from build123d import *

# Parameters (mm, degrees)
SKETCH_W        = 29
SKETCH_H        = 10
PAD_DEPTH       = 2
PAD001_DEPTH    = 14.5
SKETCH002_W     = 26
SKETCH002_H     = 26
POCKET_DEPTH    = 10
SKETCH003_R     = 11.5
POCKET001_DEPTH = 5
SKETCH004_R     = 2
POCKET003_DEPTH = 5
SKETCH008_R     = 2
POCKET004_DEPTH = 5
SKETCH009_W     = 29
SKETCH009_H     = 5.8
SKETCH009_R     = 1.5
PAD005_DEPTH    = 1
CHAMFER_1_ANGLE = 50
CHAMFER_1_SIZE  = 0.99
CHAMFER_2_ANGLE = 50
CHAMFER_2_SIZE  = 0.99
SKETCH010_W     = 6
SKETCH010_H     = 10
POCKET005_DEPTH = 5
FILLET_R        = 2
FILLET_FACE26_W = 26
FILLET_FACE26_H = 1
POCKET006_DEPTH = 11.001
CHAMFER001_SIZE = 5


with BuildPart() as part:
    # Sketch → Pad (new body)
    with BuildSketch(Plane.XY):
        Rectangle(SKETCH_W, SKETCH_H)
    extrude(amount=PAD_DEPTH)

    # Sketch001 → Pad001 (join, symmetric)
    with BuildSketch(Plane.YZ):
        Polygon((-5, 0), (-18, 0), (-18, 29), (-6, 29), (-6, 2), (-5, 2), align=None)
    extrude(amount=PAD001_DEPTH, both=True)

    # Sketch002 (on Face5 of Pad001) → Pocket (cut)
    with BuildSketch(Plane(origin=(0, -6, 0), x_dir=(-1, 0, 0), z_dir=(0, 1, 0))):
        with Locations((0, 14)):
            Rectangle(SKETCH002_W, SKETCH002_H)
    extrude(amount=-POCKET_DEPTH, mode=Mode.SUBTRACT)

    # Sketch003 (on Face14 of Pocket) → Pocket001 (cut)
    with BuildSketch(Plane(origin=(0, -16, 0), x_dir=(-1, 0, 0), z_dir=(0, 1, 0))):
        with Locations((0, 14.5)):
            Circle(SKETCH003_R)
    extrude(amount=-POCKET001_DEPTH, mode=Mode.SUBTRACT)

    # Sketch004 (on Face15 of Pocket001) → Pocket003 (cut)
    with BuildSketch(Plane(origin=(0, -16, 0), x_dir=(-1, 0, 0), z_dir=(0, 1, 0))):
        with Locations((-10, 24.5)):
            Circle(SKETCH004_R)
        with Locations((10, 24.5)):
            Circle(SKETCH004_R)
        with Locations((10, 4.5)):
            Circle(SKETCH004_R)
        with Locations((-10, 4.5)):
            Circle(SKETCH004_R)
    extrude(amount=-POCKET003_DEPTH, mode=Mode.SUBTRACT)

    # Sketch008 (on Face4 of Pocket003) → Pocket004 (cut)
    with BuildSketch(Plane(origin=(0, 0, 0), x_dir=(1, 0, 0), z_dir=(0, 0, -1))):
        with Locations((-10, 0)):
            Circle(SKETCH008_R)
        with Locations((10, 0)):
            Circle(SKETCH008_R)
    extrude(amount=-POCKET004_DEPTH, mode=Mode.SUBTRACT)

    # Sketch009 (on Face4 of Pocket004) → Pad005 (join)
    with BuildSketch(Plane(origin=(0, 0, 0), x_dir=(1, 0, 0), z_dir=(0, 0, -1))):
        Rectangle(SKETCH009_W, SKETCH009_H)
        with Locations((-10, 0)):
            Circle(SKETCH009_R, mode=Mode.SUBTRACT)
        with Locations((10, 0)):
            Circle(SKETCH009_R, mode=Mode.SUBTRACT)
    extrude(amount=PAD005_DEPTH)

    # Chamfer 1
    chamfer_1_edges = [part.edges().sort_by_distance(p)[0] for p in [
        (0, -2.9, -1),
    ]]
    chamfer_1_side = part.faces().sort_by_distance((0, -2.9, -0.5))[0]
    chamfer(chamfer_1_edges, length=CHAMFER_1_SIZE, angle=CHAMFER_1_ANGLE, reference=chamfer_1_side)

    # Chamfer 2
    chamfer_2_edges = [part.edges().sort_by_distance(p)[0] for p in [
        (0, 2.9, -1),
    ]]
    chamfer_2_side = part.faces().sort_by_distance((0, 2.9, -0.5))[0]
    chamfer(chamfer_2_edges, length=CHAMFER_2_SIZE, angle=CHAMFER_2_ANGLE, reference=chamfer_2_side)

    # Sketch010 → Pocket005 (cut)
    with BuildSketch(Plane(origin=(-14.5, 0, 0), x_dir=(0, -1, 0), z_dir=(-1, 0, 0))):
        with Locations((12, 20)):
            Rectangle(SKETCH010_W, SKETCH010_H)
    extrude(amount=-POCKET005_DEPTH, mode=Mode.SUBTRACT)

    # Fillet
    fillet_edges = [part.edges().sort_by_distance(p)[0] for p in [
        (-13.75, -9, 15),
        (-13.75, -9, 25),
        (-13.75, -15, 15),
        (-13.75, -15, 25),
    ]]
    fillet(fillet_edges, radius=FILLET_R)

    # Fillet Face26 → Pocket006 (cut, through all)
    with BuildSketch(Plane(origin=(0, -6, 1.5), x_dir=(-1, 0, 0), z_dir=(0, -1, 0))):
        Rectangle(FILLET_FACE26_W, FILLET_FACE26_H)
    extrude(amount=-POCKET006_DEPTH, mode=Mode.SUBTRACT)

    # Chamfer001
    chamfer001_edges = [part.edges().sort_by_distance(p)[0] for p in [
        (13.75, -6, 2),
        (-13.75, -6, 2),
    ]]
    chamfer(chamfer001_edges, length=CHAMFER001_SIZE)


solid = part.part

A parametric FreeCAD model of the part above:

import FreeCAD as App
import Part
import Sketcher


def edges_at(feature, points):
    """Names of the edges that pass closest to the given points."""
    edges = feature.Shape.Edges
    near = lambda p: min(range(len(edges)), key=lambda i: edges[i].distToShape(Part.Vertex(*p))[0])
    return sorted({f"Edge{near(p) + 1}" for p in points})


def add_polygon(sketch, points):
    """Adds a closed chain of lines whose ends are joined by coincident constraints."""
    first, n = sketch.GeometryCount, len(points)
    for a, b in zip(points, points[1:] + points[:1]):
        sketch.addGeometry(Part.LineSegment(App.Vector(*a, 0), App.Vector(*b, 0)), False)
    for i in range(n):
        sketch.addConstraint(Sketcher.Constraint("Coincident", first + i, 2, first + (i + 1) % n, 1))

doc = App.newDocument("Part")
body = doc.addObject("PartDesign::Body", "Body")

# Sketch on XY plane
sketch1 = body.newObject("Sketcher::SketchObject", "Sketch")
sketch1.AttachmentSupport = (doc.getObject("XY_Plane"), [""])
sketch1.MapMode = "FlatFace"
add_polygon(sketch1, [(-14, 5), (-14, -5), (14, -5), (14, 5)])  # lines 0-3
sketch1.addConstraint(Sketcher.Constraint("Vertical", 0))
sketch1.addConstraint(Sketcher.Constraint("Horizontal", 1))
sketch1.addConstraint(Sketcher.Constraint("Vertical", 2))
sketch1.addConstraint(Sketcher.Constraint("Horizontal", 3))
sketch1.addConstraint(Sketcher.Constraint("Symmetric", 0, 2, 2, 2, -1, 1))
sketch1.addConstraint(Sketcher.Constraint("DistanceX", 1, 1, 1, 2, 29.0))
sketch1.addConstraint(Sketcher.Constraint("DistanceY", 0, 2, 0, 1, 10.0))
pad1 = body.newObject("PartDesign::Pad", "Pad")
pad1.Profile = sketch1
pad1.Length = 2

# Sketch on YZ plane
sketch2 = body.newObject("Sketcher::SketchObject", "Sketch001")
sketch2.AttachmentSupport = (doc.getObject("YZ_Plane"), [""])
sketch2.MapMode = "FlatFace"
add_polygon(sketch2, [(-18, 0), (-5, 0), (-5, 2), (-6, 2), (-6, 29), (-18, 29)])  # lines 0-5
sketch2.addConstraint(Sketcher.Constraint("Horizontal", 0))
sketch2.addConstraint(Sketcher.Constraint("Vertical", 1))
sketch2.addConstraint(Sketcher.Constraint("Horizontal", 2))
sketch2.addConstraint(Sketcher.Constraint("Vertical", 3))
sketch2.addConstraint(Sketcher.Constraint("Horizontal", 4))
sketch2.addConstraint(Sketcher.Constraint("Vertical", 5))
sketch2.addConstraint(Sketcher.Constraint("PointOnObject", 0, 2, -1))
sketch2.addConstraint(Sketcher.Constraint("DistanceX", 0, 1, 0, 2, 13.0))
sketch2.addConstraint(Sketcher.Constraint("DistanceX", 2, 2, 2, 1, 1.0))
sketch2.addConstraint(Sketcher.Constraint("DistanceY", 1, 1, 1, 2, 2.0))
sketch2.addConstraint(Sketcher.Constraint("DistanceY", 3, 1, 3, 2, 27.0))
sketch2.addConstraint(Sketcher.Constraint("DistanceX", 0, 2, -1, 1, 5.0))
pad2 = body.newObject("PartDesign::Pad", "Pad001")
pad2.Profile = sketch2
pad2.Length = 29
pad2.Midplane = True

# Sketch on XZ plane
sketch3 = body.newObject("Sketcher::SketchObject", "Sketch002")
sketch3.AttachmentSupport = (doc.getObject("XZ_Plane"), [""])
sketch3.MapMode = "FlatFace"
sketch3.AttachmentOffset = App.Placement(App.Vector(0, 0, 6), App.Rotation())
add_polygon(sketch3, [(13, 27), (13, 1), (-13, 1), (-13, 27)])  # lines 0-3
sketch3.addConstraint(Sketcher.Constraint("Vertical", 0))
sketch3.addConstraint(Sketcher.Constraint("Horizontal", 1))
sketch3.addConstraint(Sketcher.Constraint("Vertical", 2))
sketch3.addConstraint(Sketcher.Constraint("Horizontal", 3))
sketch3.addConstraint(Sketcher.Constraint("Equal", 3, 0))
sketch3.addConstraint(Sketcher.Constraint("DistanceX", 1, 2, 1, 1, 26.0))
sketch3.addConstraint(Sketcher.Constraint("DistanceX", -1, 1, 0, 2, 13.0))
sketch3.addConstraint(Sketcher.Constraint("DistanceY", -1, 1, 0, 2, 1.0))
pocket1 = body.newObject("PartDesign::Pocket", "Pocket")
pocket1.Profile = sketch3
pocket1.Length = 10
pocket1.Reversed = True

# Sketch on XZ plane
sketch4 = body.newObject("Sketcher::SketchObject", "Sketch003")
sketch4.AttachmentSupport = (doc.getObject("XZ_Plane"), [""])
sketch4.MapMode = "FlatFace"
sketch4.AttachmentOffset = App.Placement(App.Vector(0, 0, 16), App.Rotation())
sketch4.addGeometry(Part.Circle(App.Vector(0, 14, 0), App.Vector(0, 0, 1), 12), False)
sketch4.addConstraint(Sketcher.Constraint("PointOnObject", 0, 3, -2))
sketch4.addConstraint(Sketcher.Constraint("Diameter", 0, 23.0))
sketch4.addConstraint(Sketcher.Constraint("DistanceY", -1, 1, 0, 3, 14.5))
pocket2 = body.newObject("PartDesign::Pocket", "Pocket001")
pocket2.Profile = sketch4
pocket2.Length = 5
pocket2.Reversed = True

# Sketch on XZ plane
sketch5 = body.newObject("Sketcher::SketchObject", "Sketch004")
sketch5.AttachmentSupport = (doc.getObject("XZ_Plane"), [""])
sketch5.MapMode = "FlatFace"
sketch5.AttachmentOffset = App.Placement(App.Vector(0, 0, 16), App.Rotation())
sketch5.addGeometry(Part.Circle(App.Vector(10, 24.5, 0), App.Vector(0, 0, 1), 2), False)
sketch5.addGeometry(Part.Circle(App.Vector(-10, 24.5, 0), App.Vector(0, 0, 1), 2), False)
sketch5.addGeometry(Part.Circle(App.Vector(-10, 4.5, 0), App.Vector(0, 0, 1), 2), False)
sketch5.addGeometry(Part.Circle(App.Vector(10, 4.5, 0), App.Vector(0, 0, 1), 2), False)
sketch5.addConstraint(Sketcher.Constraint("Equal", 0, 1))
sketch5.addConstraint(Sketcher.Constraint("Equal", 1, 2))
sketch5.addConstraint(Sketcher.Constraint("Equal", 2, 3))
sketch5.addConstraint(Sketcher.Constraint("Symmetric", 0, 3, 1, 3, -2))
sketch5.addConstraint(Sketcher.Constraint("Symmetric", 2, 3, 3, 3, -2))
sketch5.addConstraint(Sketcher.Constraint("Vertical", 1, 3, 2, 3))
sketch5.addConstraint(Sketcher.Constraint("Diameter", 0, 4.0))
sketch5.addConstraint(Sketcher.Constraint("DistanceX", -1, 1, 0, 3, 10.0))
sketch5.addConstraint(Sketcher.Constraint("DistanceY", 2, 3, 1, 3, 20.0))
sketch5.addConstraint(Sketcher.Constraint("DistanceY", -1, 1, 0, 3, 24.5))
pocket3 = body.newObject("PartDesign::Pocket", "Pocket002")
pocket3.Profile = sketch5
pocket3.Length = 5
pocket3.Reversed = True

# Sketch on XY plane
sketch6 = body.newObject("Sketcher::SketchObject", "Sketch005")
sketch6.AttachmentSupport = (doc.getObject("XY_Plane"), [""])
sketch6.MapMode = "FlatFace"
sketch6.addGeometry(Part.Circle(App.Vector(-10, 0, 0), App.Vector(0, 0, 1), 2), False)
sketch6.addGeometry(Part.Circle(App.Vector(10, 0, 0), App.Vector(0, 0, 1), 2), False)
sketch6.addConstraint(Sketcher.Constraint("Equal", 0, 1))
sketch6.addConstraint(Sketcher.Constraint("Symmetric", 0, 3, 1, 3, -1, 1))
sketch6.addConstraint(Sketcher.Constraint("PointOnObject", 0, 3, -1))
sketch6.addConstraint(Sketcher.Constraint("Diameter", 0, 4.0))
sketch6.addConstraint(Sketcher.Constraint("DistanceX", 0, 3, -1, 1, 10.0))
pocket4 = body.newObject("PartDesign::Pocket", "Pocket003")
pocket4.Profile = sketch6
pocket4.Length = 5
pocket4.Reversed = True

# Sketch on XY plane
sketch7 = body.newObject("Sketcher::SketchObject", "Sketch006")
sketch7.AttachmentSupport = (doc.getObject("XY_Plane"), [""])
sketch7.MapMode = "FlatFace"
add_polygon(sketch7, [(-14.5, -2.9), (-14.5, 2.9), (14.5, 2.9), (14.5, -2.9)])  # lines 0-3
sketch7.addGeometry(Part.Circle(App.Vector(-10, 0, 0), App.Vector(0, 0, 1), 1.5), False)  # 4
sketch7.addGeometry(Part.Circle(App.Vector(10, 0, 0), App.Vector(0, 0, 1), 1.5), False)  # 5
sketch7.addConstraint(Sketcher.Constraint("Vertical", 0))
sketch7.addConstraint(Sketcher.Constraint("Horizontal", 1))
sketch7.addConstraint(Sketcher.Constraint("Vertical", 2))
sketch7.addConstraint(Sketcher.Constraint("Horizontal", 3))
sketch7.addConstraint(Sketcher.Constraint("Equal", 4, 5))
sketch7.addConstraint(Sketcher.Constraint("Symmetric", 4, 3, 5, 3, -1, 1))
sketch7.addConstraint(Sketcher.Constraint("Symmetric", 0, 2, 2, 2, -1, 1))
sketch7.addConstraint(Sketcher.Constraint("PointOnObject", 4, 3, -1))
sketch7.addConstraint(Sketcher.Constraint("Diameter", 4, 3.0))
sketch7.addConstraint(Sketcher.Constraint("DistanceX", 1, 1, 1, 2, 29.0))
sketch7.addConstraint(Sketcher.Constraint("DistanceY", 0, 1, 0, 2, 5.8))
sketch7.addConstraint(Sketcher.Constraint("DistanceX", 4, 3, -1, 1, 10.0))
pad3 = body.newObject("PartDesign::Pad", "Pad002")
pad3.Profile = sketch7
pad3.Length = 1
pad3.Reversed = True
doc.recompute()

chamfer = body.newObject("PartDesign::Chamfer", "Chamfer")
chamfer.Base = (pad3, edges_at(pad3, [(0, -2.9, -1)]))
chamfer.ChamferType = "Distance and Angle"
chamfer.Size = 0.99
chamfer.Angle = 50
doc.recompute()

chamfer2 = body.newObject("PartDesign::Chamfer", "Chamfer001")
chamfer2.Base = (chamfer, edges_at(chamfer, [(0, 2.9, -1)]))
chamfer2.ChamferType = "Distance and Angle"
chamfer2.Size = 0.99
chamfer2.Angle = 50
chamfer2.FlipDirection = True

# Sketch on YZ plane
sketch8 = body.newObject("Sketcher::SketchObject", "Sketch007")
sketch8.AttachmentSupport = (doc.getObject("YZ_Plane"), [""])
sketch8.MapMode = "FlatFace"
sketch8.AttachmentOffset = App.Placement(App.Vector(0, 0, -14.5), App.Rotation())
add_polygon(sketch8, [(-9, 25), (-9, 15), (-15, 15), (-15, 25)])  # lines 0-3
sketch8.addConstraint(Sketcher.Constraint("Vertical", 0))
sketch8.addConstraint(Sketcher.Constraint("Horizontal", 1))
sketch8.addConstraint(Sketcher.Constraint("Vertical", 2))
sketch8.addConstraint(Sketcher.Constraint("Horizontal", 3))
sketch8.addConstraint(Sketcher.Constraint("DistanceX", 1, 2, 1, 1, 6.0))
sketch8.addConstraint(Sketcher.Constraint("DistanceY", 0, 2, 0, 1, 10.0))
sketch8.addConstraint(Sketcher.Constraint("DistanceX", 0, 2, -1, 1, 9.0))
sketch8.addConstraint(Sketcher.Constraint("DistanceY", -1, 1, 0, 2, 15.0))
pocket5 = body.newObject("PartDesign::Pocket", "Pocket004")
pocket5.Profile = sketch8
pocket5.Length = 5
pocket5.Reversed = True
doc.recompute()

fillet = body.newObject("PartDesign::Fillet", "Fillet")
fillet.Base = (pocket5, edges_at(pocket5, [
    (-13.75, -9, 15),
    (-13.75, -9, 25),
    (-13.75, -15, 15),
    (-13.75, -15, 25),
]))
fillet.Radius = 2

# Sketch on XZ plane
sketch9 = body.newObject("Sketcher::SketchObject", "Sketch008")
sketch9.AttachmentSupport = (doc.getObject("XZ_Plane"), [""])
sketch9.MapMode = "FlatFace"
sketch9.AttachmentOffset = App.Placement(App.Vector(0, 0, 6), App.Rotation())
add_polygon(sketch9, [(13, 1), (13, 2), (-13, 2), (-13, 1)])  # lines 0-3
sketch9.addConstraint(Sketcher.Constraint("Vertical", 0))
sketch9.addConstraint(Sketcher.Constraint("Horizontal", 1))
sketch9.addConstraint(Sketcher.Constraint("Vertical", 2))
sketch9.addConstraint(Sketcher.Constraint("Horizontal", 3))
sketch9.addConstraint(Sketcher.Constraint("DistanceX", 1, 2, 1, 1, 26.0))
sketch9.addConstraint(Sketcher.Constraint("DistanceY", 0, 1, 0, 2, 1.0))
sketch9.addConstraint(Sketcher.Constraint("DistanceX", -1, 1, 0, 2, 13.0))
sketch9.addConstraint(Sketcher.Constraint("DistanceY", -1, 1, 0, 2, 2.0))
pocket6 = body.newObject("PartDesign::Pocket", "Pocket005")
pocket6.Profile = sketch9
pocket6.Type = "ThroughAll"
doc.recompute()

chamfer3 = body.newObject("PartDesign::Chamfer", "Chamfer002")
chamfer3.Base = (pocket6, edges_at(pocket6, [(13.75, -6, 2), (-13.75, -6, 2)]))
chamfer3.Size = 5

doc.recompute()
